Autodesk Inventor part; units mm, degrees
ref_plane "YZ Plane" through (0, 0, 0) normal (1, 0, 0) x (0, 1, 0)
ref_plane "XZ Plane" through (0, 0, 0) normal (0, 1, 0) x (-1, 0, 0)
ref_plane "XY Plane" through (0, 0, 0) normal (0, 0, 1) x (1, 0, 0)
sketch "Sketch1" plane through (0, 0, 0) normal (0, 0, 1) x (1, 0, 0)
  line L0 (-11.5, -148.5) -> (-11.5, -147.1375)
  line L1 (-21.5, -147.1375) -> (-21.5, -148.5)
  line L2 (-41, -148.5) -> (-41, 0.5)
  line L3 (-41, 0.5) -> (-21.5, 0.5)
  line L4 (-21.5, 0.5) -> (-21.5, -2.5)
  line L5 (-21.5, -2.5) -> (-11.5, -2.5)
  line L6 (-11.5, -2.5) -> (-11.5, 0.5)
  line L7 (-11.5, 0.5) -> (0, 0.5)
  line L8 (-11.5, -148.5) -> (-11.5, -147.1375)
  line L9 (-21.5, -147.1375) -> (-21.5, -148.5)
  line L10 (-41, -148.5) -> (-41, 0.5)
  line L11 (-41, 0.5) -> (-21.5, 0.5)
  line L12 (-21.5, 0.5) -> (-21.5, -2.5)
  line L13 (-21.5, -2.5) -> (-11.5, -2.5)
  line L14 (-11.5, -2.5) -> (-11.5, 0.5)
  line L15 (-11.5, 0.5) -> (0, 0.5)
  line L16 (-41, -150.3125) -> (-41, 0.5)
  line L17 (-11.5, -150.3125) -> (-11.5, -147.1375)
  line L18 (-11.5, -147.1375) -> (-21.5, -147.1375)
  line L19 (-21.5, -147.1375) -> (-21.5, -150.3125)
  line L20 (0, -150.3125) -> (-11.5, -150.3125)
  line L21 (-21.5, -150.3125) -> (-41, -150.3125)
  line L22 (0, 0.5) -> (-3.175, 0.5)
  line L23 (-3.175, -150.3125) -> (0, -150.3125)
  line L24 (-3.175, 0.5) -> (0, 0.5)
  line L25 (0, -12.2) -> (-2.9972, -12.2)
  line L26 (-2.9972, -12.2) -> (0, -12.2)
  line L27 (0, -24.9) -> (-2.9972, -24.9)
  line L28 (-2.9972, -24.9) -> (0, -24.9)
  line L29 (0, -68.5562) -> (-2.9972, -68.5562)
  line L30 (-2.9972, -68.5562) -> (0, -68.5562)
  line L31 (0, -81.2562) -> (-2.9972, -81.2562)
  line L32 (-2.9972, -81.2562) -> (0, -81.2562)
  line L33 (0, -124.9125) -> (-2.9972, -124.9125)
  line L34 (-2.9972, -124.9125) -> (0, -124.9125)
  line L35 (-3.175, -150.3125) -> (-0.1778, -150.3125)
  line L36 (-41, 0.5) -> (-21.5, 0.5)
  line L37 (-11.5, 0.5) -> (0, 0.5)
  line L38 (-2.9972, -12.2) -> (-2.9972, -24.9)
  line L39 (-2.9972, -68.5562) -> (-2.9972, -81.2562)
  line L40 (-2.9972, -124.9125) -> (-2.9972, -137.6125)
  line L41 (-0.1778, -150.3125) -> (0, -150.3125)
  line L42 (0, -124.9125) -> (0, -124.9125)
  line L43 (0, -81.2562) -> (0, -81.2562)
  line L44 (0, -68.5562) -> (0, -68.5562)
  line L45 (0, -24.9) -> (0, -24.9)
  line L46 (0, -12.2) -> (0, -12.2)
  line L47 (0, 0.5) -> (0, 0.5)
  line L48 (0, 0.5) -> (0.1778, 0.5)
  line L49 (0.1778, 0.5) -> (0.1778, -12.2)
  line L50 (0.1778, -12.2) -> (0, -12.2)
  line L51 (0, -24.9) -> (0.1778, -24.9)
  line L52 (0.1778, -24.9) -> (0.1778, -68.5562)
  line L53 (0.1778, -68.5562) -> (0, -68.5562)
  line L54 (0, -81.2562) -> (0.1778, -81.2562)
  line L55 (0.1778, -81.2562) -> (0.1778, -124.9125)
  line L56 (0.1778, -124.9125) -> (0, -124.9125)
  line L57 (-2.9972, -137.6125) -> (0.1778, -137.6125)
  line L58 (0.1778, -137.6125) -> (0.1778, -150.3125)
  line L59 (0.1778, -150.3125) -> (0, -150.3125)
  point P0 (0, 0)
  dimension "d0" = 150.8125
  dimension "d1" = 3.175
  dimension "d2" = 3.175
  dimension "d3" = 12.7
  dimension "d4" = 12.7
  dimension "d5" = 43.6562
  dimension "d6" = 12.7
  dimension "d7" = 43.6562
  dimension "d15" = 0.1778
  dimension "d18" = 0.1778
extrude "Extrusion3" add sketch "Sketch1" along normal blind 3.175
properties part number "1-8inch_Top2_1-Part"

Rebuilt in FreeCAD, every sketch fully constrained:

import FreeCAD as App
import Part
import Sketcher

V = App.Vector
Q = App.Units.Quantity


def add_polygon(sketch, points):
    """Adds a closed chain of lines whose ends are joined by coincident constraints."""
    first, n = sketch.GeometryCount, len(points)
    for a, b in zip(points, points[1:] + points[:1]):
        sketch.addGeometry(Part.LineSegment(App.Vector(*a, 0), App.Vector(*b, 0)), False)
    for i in range(n):
        sketch.addConstraint(Sketcher.Constraint("Coincident", first + i, 2, first + (i + 1) % n, 1))

doc = App.newDocument("Part")
body = doc.addObject("PartDesign::Body", "Body")

sketch1 = body.newObject("Sketcher::SketchObject", "Sketch")
sketch1.AttachmentSupport = (doc.getObject("XY_Plane"), [""])
sketch1.MapMode = "FlatFace"
add_polygon(sketch1, [(-11.5, -147.1), (-11.5, -150.3), (0.2, -150.3), (0.2, -137.6), (-3, -137.6), (-3, -124.9), (0.2, -124.9), (0.2, -81.3), (-3, -81.3), (-3, -68.6), (0.2, -68.6), (0.2, -24.9), (-3, -24.9), (-3, -12.2), (0.2, -12.2), (0.2, 0.5), (-11.5, 0.5), (-11.5, -2.5), (-21.5, -2.5), (-21.5, 0.5), (-41, 0.5), (-41, -150.3), (-21.5, -150.3), (-21.5, -147.1)])
sketch1.addConstraint(Sketcher.Constraint("Vertical", 0))
sketch1.addConstraint(Sketcher.Constraint("Horizontal", 1))
sketch1.addConstraint(Sketcher.Constraint("Vertical", 2))
sketch1.addConstraint(Sketcher.Constraint("Horizontal", 3))
sketch1.addConstraint(Sketcher.Constraint("Vertical", 4))
sketch1.addConstraint(Sketcher.Constraint("Horizontal", 5))
sketch1.addConstraint(Sketcher.Constraint("Vertical", 6))
sketch1.addConstraint(Sketcher.Constraint("Horizontal", 7))
sketch1.addConstraint(Sketcher.Constraint("Vertical", 8))
sketch1.addConstraint(Sketcher.Constraint("Horizontal", 9))
sketch1.addConstraint(Sketcher.Constraint("Vertical", 10))
sketch1.addConstraint(Sketcher.Constraint("Horizontal", 11))
sketch1.addConstraint(Sketcher.Constraint("Vertical", 12))
sketch1.addConstraint(Sketcher.Constraint("Horizontal", 13))
sketch1.addConstraint(Sketcher.Constraint("Vertical", 14))
sketch1.addConstraint(Sketcher.Constraint("Horizontal", 15))
sketch1.addConstraint(Sketcher.Constraint("Vertical", 16))
sketch1.addConstraint(Sketcher.Constraint("Horizontal", 17))
sketch1.addConstraint(Sketcher.Constraint("Vertical", 18))
sketch1.addConstraint(Sketcher.Constraint("Horizontal", 19))
sketch1.addConstraint(Sketcher.Constraint("Vertical", 20))
sketch1.addConstraint(Sketcher.Constraint("Horizontal", 21))
sketch1.addConstraint(Sketcher.Constraint("Vertical", 22))
sketch1.addConstraint(Sketcher.Constraint("Horizontal", 23))
sketch1.addConstraint(Sketcher.Constraint("Horizontal", 15, 2, 18, 2))
sketch1.addConstraint(Sketcher.Constraint("Horizontal", 1, 2, 20, 2))
sketch1.addConstraint(Sketcher.Constraint("Vertical", 2, 2, 5, 2))
sketch1.addConstraint(Sketcher.Constraint("Vertical", 4, 2, 7, 2))
sketch1.addConstraint(Sketcher.Constraint("Vertical", 6, 2, 9, 2))
sketch1.addConstraint(Sketcher.Constraint("Vertical", 8, 2, 11, 2))
sketch1.addConstraint(Sketcher.Constraint("Vertical", 10, 2, 13, 2))
sketch1.addConstraint(Sketcher.Constraint("Vertical", 0, 2, 15, 2))
sketch1.addConstraint(Sketcher.Constraint("Vertical", 18, 2, 21, 2))
sketch1.addConstraint(Sketcher.Constraint("Equal", 13, 0))
sketch1.addConstraint(Sketcher.Constraint("Equal", 2, 4))
sketch1.addConstraint(Sketcher.Constraint("Equal", 4, 8))
sketch1.addConstraint(Sketcher.Constraint("Equal", 6, 10))
sketch1.addConstraint(Sketcher.Constraint("Equal", 8, 12))
sketch1.addConstraint(Sketcher.Constraint("Equal", 12, 14))
sketch1.addConstraint(Sketcher.Constraint("DistanceY", 2, 1, 2, 2, Q("0.5 in")))
sketch1.addConstraint(Sketcher.Constraint("DistanceX", 3, 2, 3, 1, Q("0.125 in")))
sketch1.addConstraint(Sketcher.Constraint("DistanceY", 6, 1, 6, 2, Q("1.718752 in")))
sketch1.addConstraint(Sketcher.Constraint("DistanceX", -1, 1, 1, 2, Q("0.007 in")))
sketch1.addConstraint(Sketcher.Constraint("DistanceX", 17, 2, 17, 1, Q("0.3937 in")))
sketch1.addConstraint(Sketcher.Constraint("DistanceY", 16, 2, 16, 1, Q("0.1181 in")))
sketch1.addConstraint(Sketcher.Constraint("DistanceX", 1, 1, 1, 2, 11.6778))
sketch1.addConstraint(Sketcher.Constraint("DistanceX", 19, 2, 19, 1, 19.5))
sketch1.addConstraint(Sketcher.Constraint("DistanceY", 0, 2, -1, 1, 150.3125))
pad1 = body.newObject("PartDesign::Pad", "Pad")
pad1.Profile = sketch1
pad1.Length = Q("0.125 in")

doc.recompute()
